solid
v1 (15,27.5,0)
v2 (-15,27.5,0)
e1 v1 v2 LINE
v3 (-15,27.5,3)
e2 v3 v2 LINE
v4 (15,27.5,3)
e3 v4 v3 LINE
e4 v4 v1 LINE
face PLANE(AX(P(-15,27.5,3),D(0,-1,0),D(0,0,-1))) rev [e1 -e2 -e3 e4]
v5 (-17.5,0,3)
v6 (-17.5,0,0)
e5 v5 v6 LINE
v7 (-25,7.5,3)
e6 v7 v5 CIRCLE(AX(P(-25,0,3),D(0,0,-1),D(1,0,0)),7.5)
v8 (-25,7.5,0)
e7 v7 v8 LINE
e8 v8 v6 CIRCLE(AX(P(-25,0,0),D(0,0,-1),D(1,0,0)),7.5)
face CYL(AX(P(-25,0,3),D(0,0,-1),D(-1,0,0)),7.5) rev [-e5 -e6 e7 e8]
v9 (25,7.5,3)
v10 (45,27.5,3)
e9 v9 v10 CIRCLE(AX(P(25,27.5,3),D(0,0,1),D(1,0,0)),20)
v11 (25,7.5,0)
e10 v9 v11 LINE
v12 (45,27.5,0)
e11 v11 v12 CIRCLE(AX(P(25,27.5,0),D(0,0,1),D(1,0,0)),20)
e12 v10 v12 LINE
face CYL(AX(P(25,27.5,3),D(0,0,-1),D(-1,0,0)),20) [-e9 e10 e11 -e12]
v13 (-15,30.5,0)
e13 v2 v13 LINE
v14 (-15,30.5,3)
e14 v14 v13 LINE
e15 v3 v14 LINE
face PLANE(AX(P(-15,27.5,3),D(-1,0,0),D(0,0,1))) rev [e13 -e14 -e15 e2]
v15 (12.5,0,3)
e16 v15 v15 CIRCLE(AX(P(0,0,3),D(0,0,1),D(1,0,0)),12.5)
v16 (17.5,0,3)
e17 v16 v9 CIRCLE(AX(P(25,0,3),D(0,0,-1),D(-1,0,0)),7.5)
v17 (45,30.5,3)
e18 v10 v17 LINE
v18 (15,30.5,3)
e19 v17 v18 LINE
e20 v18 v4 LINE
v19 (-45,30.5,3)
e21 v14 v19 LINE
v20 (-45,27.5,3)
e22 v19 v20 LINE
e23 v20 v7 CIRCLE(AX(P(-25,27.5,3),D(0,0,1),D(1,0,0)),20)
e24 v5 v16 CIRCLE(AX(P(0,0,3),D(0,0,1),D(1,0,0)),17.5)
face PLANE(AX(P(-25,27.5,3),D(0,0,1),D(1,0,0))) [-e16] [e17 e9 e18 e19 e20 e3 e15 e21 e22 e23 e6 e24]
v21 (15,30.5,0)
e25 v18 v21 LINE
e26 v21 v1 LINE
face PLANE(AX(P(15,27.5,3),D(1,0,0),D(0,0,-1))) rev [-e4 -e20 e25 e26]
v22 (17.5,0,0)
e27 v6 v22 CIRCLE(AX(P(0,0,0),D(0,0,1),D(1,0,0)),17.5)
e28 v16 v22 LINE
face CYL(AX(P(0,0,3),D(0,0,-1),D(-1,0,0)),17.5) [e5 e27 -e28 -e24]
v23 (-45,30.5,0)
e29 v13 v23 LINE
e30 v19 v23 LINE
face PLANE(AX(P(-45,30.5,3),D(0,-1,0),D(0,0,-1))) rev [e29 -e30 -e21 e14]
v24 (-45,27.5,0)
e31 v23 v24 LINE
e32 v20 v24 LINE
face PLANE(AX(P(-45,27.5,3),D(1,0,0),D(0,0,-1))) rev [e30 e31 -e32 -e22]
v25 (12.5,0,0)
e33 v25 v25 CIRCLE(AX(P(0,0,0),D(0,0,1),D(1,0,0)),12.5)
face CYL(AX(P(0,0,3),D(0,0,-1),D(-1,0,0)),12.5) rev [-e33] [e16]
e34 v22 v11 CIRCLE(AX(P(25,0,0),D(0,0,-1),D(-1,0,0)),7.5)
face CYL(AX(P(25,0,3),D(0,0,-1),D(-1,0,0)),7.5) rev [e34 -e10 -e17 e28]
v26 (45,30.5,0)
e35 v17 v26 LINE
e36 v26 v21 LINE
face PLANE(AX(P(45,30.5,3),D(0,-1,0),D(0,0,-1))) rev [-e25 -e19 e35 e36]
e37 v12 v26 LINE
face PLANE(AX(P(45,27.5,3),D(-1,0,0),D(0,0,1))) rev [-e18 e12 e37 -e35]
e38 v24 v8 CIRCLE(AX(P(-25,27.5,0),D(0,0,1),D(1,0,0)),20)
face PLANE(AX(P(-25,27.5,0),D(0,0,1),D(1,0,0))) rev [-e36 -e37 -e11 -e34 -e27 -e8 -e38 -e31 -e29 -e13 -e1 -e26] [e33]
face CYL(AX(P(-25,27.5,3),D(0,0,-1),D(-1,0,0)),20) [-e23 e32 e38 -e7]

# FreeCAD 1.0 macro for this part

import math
import FreeCAD as App
import Part
import Sketcher
from FreeCAD import Vector
Q = App.Units.Quantity

doc = App.newDocument("Part")
body = doc.addObject("PartDesign::Body", "Body")

sketch1 = body.newObject("Sketcher::SketchObject", "Sketch")
sketch1.AttachmentSupport = (doc.getObject("XY_Plane"), [""])
sketch1.MapMode = "FlatFace"
sketch1.addGeometry(Part.LineSegment(Vector(15, 27.5, 0), Vector(-15, 27.5, 0)), False)
sketch1.addGeometry(Part.LineSegment(Vector(-15, 27.5, 0), Vector(-15, 30.5, 0)), False)
sketch1.addGeometry(Part.LineSegment(Vector(-15, 30.5, 0), Vector(-45, 30.5, 0)), False)
sketch1.addGeometry(Part.LineSegment(Vector(-45, 30.5, 0), Vector(-45, 27.5, 0)), False)
sketch1.addGeometry(Part.ArcOfCircle(Part.Circle(Vector(-25, 27.5, 0), Vector(0, 0, 1), 20), math.radians(180), math.radians(270)), False)
sketch1.addGeometry(Part.ArcOfCircle(Part.Circle(Vector(-25, 0, 0), Vector(0, 0, 1), 7.5), math.radians(0), math.radians(90)), False)
sketch1.addGeometry(Part.ArcOfCircle(Part.Circle(Vector(0, 0, 0), Vector(0, 0, 1), 17.5), math.radians(180), math.radians(360)), False)
sketch1.addGeometry(Part.ArcOfCircle(Part.Circle(Vector(25, 0, 0), Vector(0, 0, 1), 7.5), math.radians(90), math.radians(180)), False)
sketch1.addGeometry(Part.ArcOfCircle(Part.Circle(Vector(25, 27.5, 0), Vector(0, 0, 1), 20), math.radians(-90), math.radians(0)), False)
sketch1.addGeometry(Part.LineSegment(Vector(45, 27.5, 0), Vector(45, 30.5, 0)), False)
sketch1.addGeometry(Part.LineSegment(Vector(45, 30.5, 0), Vector(15, 30.5, 0)), False)
sketch1.addGeometry(Part.LineSegment(Vector(15, 30.5, 0), Vector(15, 27.5, 0)), False)
sketch1.addGeometry(Part.Circle(Vector(0, 0, 0), Vector(0, 0, 1), 12.5), False)
sketch1.addConstraint(Sketcher.Constraint("Coincident", 0, 2, 1, 1))
sketch1.addConstraint(Sketcher.Constraint("Coincident", 1, 2, 2, 1))
sketch1.addConstraint(Sketcher.Constraint("Coincident", 2, 2, 3, 1))
sketch1.addConstraint(Sketcher.Constraint("Tangent", 3, 2, 4, 1))
sketch1.addConstraint(Sketcher.Constraint("Tangent", 4, 2, 5, 2))
sketch1.addConstraint(Sketcher.Constraint("Tangent", 5, 1, 6, 1))
sketch1.addConstraint(Sketcher.Constraint("Tangent", 6, 2, 7, 2))
sketch1.addConstraint(Sketcher.Constraint("Tangent", 7, 1, 8, 1))
sketch1.addConstraint(Sketcher.Constraint("Tangent", 8, 2, 9, 1))
sketch1.addConstraint(Sketcher.Constraint("Coincident", 9, 2, 10, 1))
sketch1.addConstraint(Sketcher.Constraint("Coincident", 10, 2, 11, 1))
sketch1.addConstraint(Sketcher.Constraint("Coincident", 11, 2, 0, 1))
sketch1.addConstraint(Sketcher.Constraint("Horizontal", 0))
sketch1.addConstraint(Sketcher.Constraint("Vertical", 1))
sketch1.addConstraint(Sketcher.Constraint("Horizontal", 2))
sketch1.addConstraint(Sketcher.Constraint("Vertical", 3))
sketch1.addConstraint(Sketcher.Constraint("Vertical", 9))
sketch1.addConstraint(Sketcher.Constraint("Horizontal", 10))
sketch1.addConstraint(Sketcher.Constraint("Vertical", 11))
sketch1.addConstraint(Sketcher.Constraint("Coincident", 6, 3, -1, 1))
sketch1.addConstraint(Sketcher.Constraint("Coincident", 12, 3, -1, 1))
sketch1.addConstraint(Sketcher.Constraint("Equal", 5, 7))
sketch1.addConstraint(Sketcher.Constraint("Equal", 4, 8))
sketch1.addConstraint(Sketcher.Constraint("Symmetric", 4, 3, 8, 3, -2))
sketch1.addConstraint(Sketcher.Constraint("Symmetric", 1, 2, 10, 2, -2))
sketch1.addConstraint(Sketcher.Constraint("PointOnObject", 5, 3, -1))
sketch1.addConstraint(Sketcher.Constraint("Horizontal", 8, 3, 0, 2))
sketch1.addConstraint(Sketcher.Constraint("Vertical", 4, 3, 5, 3))
sketch1.addConstraint(Sketcher.Constraint("Equal", 0, 2))
sketch1.addConstraint(Sketcher.Constraint("Diameter", 12, Q("25 mm")))
sketch1.addConstraint(Sketcher.Constraint("Radius", 4, Q("20 mm")))
sketch1.addConstraint(Sketcher.Constraint("Radius", 5, Q("7.5 mm")))
sketch1.addConstraint(Sketcher.Constraint("Radius", 6, Q("17.5 mm")))
sketch1.addConstraint(Sketcher.Constraint("DistanceY", 1, 1, 1, 2, Q("3 mm")))
pad1 = body.newObject("PartDesign::Pad", "Pad")
pad1.Profile = sketch1
pad1.Length = 3

doc.recompute()
